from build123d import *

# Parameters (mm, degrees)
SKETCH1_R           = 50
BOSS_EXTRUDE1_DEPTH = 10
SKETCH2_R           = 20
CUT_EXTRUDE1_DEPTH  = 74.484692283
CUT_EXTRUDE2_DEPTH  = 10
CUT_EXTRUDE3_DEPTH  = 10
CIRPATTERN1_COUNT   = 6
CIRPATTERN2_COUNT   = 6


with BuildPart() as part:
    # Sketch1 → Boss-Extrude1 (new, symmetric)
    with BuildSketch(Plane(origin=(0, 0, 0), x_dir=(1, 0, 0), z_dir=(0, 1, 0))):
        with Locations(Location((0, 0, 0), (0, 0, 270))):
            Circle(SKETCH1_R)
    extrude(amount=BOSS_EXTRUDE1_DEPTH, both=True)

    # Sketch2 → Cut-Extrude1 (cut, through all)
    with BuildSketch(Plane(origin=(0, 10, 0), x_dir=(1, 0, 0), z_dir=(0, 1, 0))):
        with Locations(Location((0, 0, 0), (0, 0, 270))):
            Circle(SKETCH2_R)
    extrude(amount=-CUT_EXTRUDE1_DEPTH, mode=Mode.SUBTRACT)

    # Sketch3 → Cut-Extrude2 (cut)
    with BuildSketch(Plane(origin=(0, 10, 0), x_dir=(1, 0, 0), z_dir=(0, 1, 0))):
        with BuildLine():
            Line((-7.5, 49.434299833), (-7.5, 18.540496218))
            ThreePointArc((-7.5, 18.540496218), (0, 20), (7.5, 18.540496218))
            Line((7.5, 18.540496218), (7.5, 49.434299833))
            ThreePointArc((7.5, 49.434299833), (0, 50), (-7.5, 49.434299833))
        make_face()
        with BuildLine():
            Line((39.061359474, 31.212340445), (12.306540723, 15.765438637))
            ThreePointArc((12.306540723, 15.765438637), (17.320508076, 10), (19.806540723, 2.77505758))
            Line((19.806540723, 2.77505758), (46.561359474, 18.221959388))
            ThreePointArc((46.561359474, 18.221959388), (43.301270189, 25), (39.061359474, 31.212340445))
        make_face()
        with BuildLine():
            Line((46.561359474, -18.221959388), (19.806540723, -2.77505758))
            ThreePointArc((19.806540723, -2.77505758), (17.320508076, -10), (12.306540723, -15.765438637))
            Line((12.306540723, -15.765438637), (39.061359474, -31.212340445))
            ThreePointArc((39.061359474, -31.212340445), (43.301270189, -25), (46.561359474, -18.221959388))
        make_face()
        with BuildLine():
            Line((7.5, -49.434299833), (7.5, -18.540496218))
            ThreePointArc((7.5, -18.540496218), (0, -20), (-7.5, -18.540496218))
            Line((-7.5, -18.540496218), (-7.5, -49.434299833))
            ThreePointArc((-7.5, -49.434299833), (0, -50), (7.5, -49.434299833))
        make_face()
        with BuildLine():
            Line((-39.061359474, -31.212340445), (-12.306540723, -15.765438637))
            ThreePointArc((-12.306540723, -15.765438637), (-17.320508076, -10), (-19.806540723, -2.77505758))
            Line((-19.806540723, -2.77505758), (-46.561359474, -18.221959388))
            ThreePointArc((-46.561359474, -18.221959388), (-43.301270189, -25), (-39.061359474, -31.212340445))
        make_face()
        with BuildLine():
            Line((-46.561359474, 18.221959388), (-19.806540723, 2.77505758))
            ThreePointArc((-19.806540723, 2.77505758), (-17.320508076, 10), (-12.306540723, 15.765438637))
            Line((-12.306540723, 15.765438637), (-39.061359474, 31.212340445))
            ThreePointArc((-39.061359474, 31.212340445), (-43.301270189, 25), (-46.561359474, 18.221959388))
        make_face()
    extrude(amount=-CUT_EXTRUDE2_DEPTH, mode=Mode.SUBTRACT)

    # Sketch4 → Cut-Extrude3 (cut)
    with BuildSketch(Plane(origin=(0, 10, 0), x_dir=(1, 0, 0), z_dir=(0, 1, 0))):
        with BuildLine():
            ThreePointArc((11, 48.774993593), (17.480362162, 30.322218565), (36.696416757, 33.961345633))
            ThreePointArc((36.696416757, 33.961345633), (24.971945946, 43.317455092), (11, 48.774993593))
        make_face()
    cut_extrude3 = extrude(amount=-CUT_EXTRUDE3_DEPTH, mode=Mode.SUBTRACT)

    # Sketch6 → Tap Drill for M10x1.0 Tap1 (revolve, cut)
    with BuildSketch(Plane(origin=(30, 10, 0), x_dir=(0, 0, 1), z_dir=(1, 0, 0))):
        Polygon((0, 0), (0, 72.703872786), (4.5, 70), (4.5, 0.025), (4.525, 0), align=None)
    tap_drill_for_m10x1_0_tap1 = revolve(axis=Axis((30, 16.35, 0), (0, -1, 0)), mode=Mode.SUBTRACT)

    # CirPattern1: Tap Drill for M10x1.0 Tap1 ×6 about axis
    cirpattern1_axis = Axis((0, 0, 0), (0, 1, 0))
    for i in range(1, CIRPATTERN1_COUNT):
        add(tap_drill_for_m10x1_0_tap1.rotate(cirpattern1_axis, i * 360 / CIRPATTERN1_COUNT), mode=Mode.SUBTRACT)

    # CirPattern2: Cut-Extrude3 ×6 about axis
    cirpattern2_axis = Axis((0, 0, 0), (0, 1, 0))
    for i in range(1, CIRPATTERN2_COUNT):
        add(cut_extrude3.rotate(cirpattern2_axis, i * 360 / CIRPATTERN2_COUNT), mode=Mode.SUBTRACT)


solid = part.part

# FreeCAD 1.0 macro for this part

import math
import FreeCAD as App
import Part
import Sketcher

V = App.Vector
Q = App.Units.Quantity


def add_polygon(sketch, points):
    """Adds a closed chain of lines whose ends are joined by coincident constraints."""
    first, n = sketch.GeometryCount, len(points)
    for a, b in zip(points, points[1:] + points[:1]):
        sketch.addGeometry(Part.LineSegment(App.Vector(*a, 0), App.Vector(*b, 0)), False)
    for i in range(n):
        sketch.addConstraint(Sketcher.Constraint("Coincident", first + i, 2, first + (i + 1) % n, 1))

doc = App.newDocument("Part")
body = doc.addObject("PartDesign::Body", "Body")

# Sketch on XZ plane
sketch1 = doc.addObject("Sketcher::SketchObject", "Sketch")
body.addObject(sketch1)
sketch1.AttachmentSupport = (doc.XZ_Plane, [""])
sketch1.MapMode = "FlatFace"
sketch1.addGeometry(Part.Circle(V(0, 0, 0), V(0, 0, 1), 50), False)
sketch1.addConstraint([
    Sketcher.Constraint("Coincident", 0, 3, -1, 1),
    Sketcher.Constraint("Diameter", 0, 100.0),
])
pad1 = doc.addObject("PartDesign::Pad", "Pad")
body.addObject(pad1)
pad1.Profile = sketch1
pad1.Length = 20
pad1.Midplane = True

# Sketch on XZ plane
sketch2 = doc.addObject("Sketcher::SketchObject", "Sketch001")
body.addObject(sketch2)
sketch2.AttachmentSupport = (doc.XZ_Plane, [""])
sketch2.MapMode = "FlatFace"
sketch2.AttachmentOffset = App.Placement(V(0, 0, -10), App.Rotation())
sketch2.addGeometry(Part.Circle(V(0, 0, 0), V(0, 0, 1), 20), False)
sketch2.addConstraint([
    Sketcher.Constraint("Coincident", 0, 3, -1, 1),
    Sketcher.Constraint("Diameter", 0, 40.0),
])
pocket1 = doc.addObject("PartDesign::Pocket", "Pocket")
body.addObject(pocket1)
pocket1.Profile = sketch2
pocket1.Type = "ThroughAll"
pocket1.Reversed = True

# Sketch on XZ plane
sketch3 = doc.addObject("Sketcher::SketchObject", "Sketch002")
body.addObject(sketch3)
sketch3.AttachmentSupport = (doc.XZ_Plane, [""])
sketch3.MapMode = "FlatFace"
sketch3.AttachmentOffset = App.Placement(V(0, 0, -10), App.Rotation())
sketch3.addGeometry([
    Part.LineSegment(V(-8, -49, 0), V(-8, -19, 0)),  # 0
    Part.ArcOfCircle(Part.Circle(V(0, 0, 0), V(0, 0, 1), 20), math.radians(-112), math.radians(-68)),  # 1
    Part.LineSegment(V(8, -19, 0), V(8, -49, 0)),  # 2
    Part.ArcOfCircle(Part.Circle(V(0, 0, 0), V(0, 0, 1), 50), math.radians(-98.63), math.radians(-81.37)),  # 3
    Part.LineSegment(V(39, -31, 0), V(12, -16, 0)),  # 4
    Part.ArcOfCircle(Part.Circle(V(0, 0, 0), V(0, 0, 1), 20), math.radians(-52), math.radians(-8)),  # 5
    Part.LineSegment(V(20, -3, 0), V(47, -18, 0)),  # 6
    Part.ArcOfCircle(Part.Circle(V(0, 0, 0), V(0, 0, 1), 50), math.radians(-38.63), math.radians(-21.37)),  # 7
    Part.LineSegment(V(47, 18, 0), V(20, 3, 0)),  # 8
    Part.ArcOfCircle(Part.Circle(V(0, 0, 0), V(0, 0, 1), 20), math.radians(8), math.radians(52)),  # 9
    Part.LineSegment(V(12, 16, 0), V(39, 31, 0)),  # 10
    Part.ArcOfCircle(Part.Circle(V(0, 0, 0), V(0, 0, 1), 50), math.radians(21.37), math.radians(38.63)),  # 11
    Part.LineSegment(V(8, 49, 0), V(8, 19, 0)),  # 12
    Part.ArcOfCircle(Part.Circle(V(0, 0, 0), V(0, 0, 1), 20), math.radians(68), math.radians(112)),  # 13
    Part.LineSegment(V(-8, 19, 0), V(-8, 49, 0)),  # 14
    Part.ArcOfCircle(Part.Circle(V(0, 0, 0), V(0, 0, 1), 50), math.radians(81.37), math.radians(98.63)),  # 15
    Part.LineSegment(V(-39, 31, 0), V(-12, 16, 0)),  # 16
    Part.ArcOfCircle(Part.Circle(V(0, 0, 0), V(0, 0, 1), 20), math.radians(128), math.radians(172)),  # 17
    Part.LineSegment(V(-20, 3, 0), V(-47, 18, 0)),  # 18
    Part.ArcOfCircle(Part.Circle(V(0, 0, 0), V(0, 0, 1), 50), math.radians(141.37), math.radians(158.63)),  # 19
    Part.LineSegment(V(-47, -18, 0), V(-20, -3, 0)),  # 20
    Part.ArcOfCircle(Part.Circle(V(0, 0, 0), V(0, 0, 1), 20), math.radians(-172), math.radians(-128)),  # 21
    Part.LineSegment(V(-12, -16, 0), V(-39, -31, 0)),  # 22
    Part.ArcOfCircle(Part.Circle(V(0, 0, 0), V(0, 0, 1), 50), math.radians(-158.63), math.radians(-141.37)),  # 23
], False)
sketch3.addConstraint([
    Sketcher.Constraint("Coincident", 0, 2, 1, 1),
    Sketcher.Constraint("Coincident", 1, 2, 2, 1),
    Sketcher.Constraint("Coincident", 2, 2, 3, 2),
    Sketcher.Constraint("Coincident", 3, 1, 0, 1),
    Sketcher.Constraint("Coincident", 4, 2, 5, 1),
    Sketcher.Constraint("Coincident", 5, 2, 6, 1),
    Sketcher.Constraint("Coincident", 6, 2, 7, 2),
    Sketcher.Constraint("Coincident", 7, 1, 4, 1),
    Sketcher.Constraint("Coincident", 8, 2, 9, 1),
    Sketcher.Constraint("Coincident", 9, 2, 10, 1),
    Sketcher.Constraint("Coincident", 10, 2, 11, 2),
    Sketcher.Constraint("Coincident", 11, 1, 8, 1),
    Sketcher.Constraint("Coincident", 12, 2, 13, 1),
    Sketcher.Constraint("Coincident", 13, 2, 14, 1),
    Sketcher.Constraint("Coincident", 14, 2, 15, 2),
    Sketcher.Constraint("Coincident", 15, 1, 12, 1),
    Sketcher.Constraint("Coincident", 16, 2, 17, 1),
    Sketcher.Constraint("Coincident", 17, 2, 18, 1),
    Sketcher.Constraint("Coincident", 18, 2, 19, 2),
    Sketcher.Constraint("Coincident", 19, 1, 16, 1),
    Sketcher.Constraint("Coincident", 20, 2, 21, 1),
    Sketcher.Constraint("Coincident", 21, 2, 22, 1),
    Sketcher.Constraint("Coincident", 22, 2, 23, 2),
    Sketcher.Constraint("Coincident", 23, 1, 20, 1),
    Sketcher.Constraint("Vertical", 0),
    Sketcher.Constraint("Vertical", 2),
    Sketcher.Constraint("Vertical", 12),
    Sketcher.Constraint("Vertical", 14),
    Sketcher.Constraint("Coincident", 1, 3, -1, 1),
    Sketcher.Constraint("Coincident", 3, 3, -1, 1),
    Sketcher.Constraint("Coincident", 5, 3, -1, 1),
    Sketcher.Constraint("Coincident", 7, 3, -1, 1),
    Sketcher.Constraint("Coincident", 9, 3, -1, 1),
    Sketcher.Constraint("Coincident", 11, 3, -1, 1),
    Sketcher.Constraint("Coincident", 13, 3, -1, 1),
    Sketcher.Constraint("Coincident", 15, 3, -1, 1),
    Sketcher.Constraint("Coincident", 17, 3, -1, 1),
    Sketcher.Constraint("Coincident", 19, 3, -1, 1),
    Sketcher.Constraint("Coincident", 21, 3, -1, 1),
    Sketcher.Constraint("Coincident", 23, 3, -1, 1),
    Sketcher.Constraint("Equal", 1, 5),
    Sketcher.Constraint("Equal", 3, 7),
    Sketcher.Constraint("Equal", 5, 9),
    Sketcher.Constraint("Equal", 7, 11),
    Sketcher.Constraint("Equal", 9, 13),
    Sketcher.Constraint("Equal", 11, 15),
    Sketcher.Constraint("Equal", 13, 17),
    Sketcher.Constraint("Equal", 15, 19),
    Sketcher.Constraint("Equal", 17, 21),
    Sketcher.Constraint("Equal", 19, 23),
    Sketcher.Constraint("Parallel", 4, 6),
    Sketcher.Constraint("Parallel", 8, 10),
    Sketcher.Constraint("Parallel", 6, 16),
    Sketcher.Constraint("Parallel", 16, 18),
    Sketcher.Constraint("Parallel", 10, 20),
    Sketcher.Constraint("Parallel", 20, 22),
    Sketcher.Constraint("Horizontal", 0, 2, 1, 2),
    Sketcher.Constraint("Horizontal", 12, 2, 13, 2),
    Sketcher.Constraint("Horizontal", 9, 2, 16, 2),
    Sketcher.Constraint("Horizontal", 8, 2, 17, 2),
    Sketcher.Constraint("Horizontal", 11, 1, 18, 2),
    Sketcher.Constraint("Horizontal", 5, 2, 20, 2),
    Sketcher.Constraint("Horizontal", 4, 2, 21, 2),
    Sketcher.Constraint("Vertical", 5, 2, 8, 2),
    Sketcher.Constraint("Vertical", 4, 2, 9, 2),
    Sketcher.Constraint("Vertical", 2, 2, 12, 2),
    Sketcher.Constraint("Equal", 4, 6),
    Sketcher.Constraint("Radius", 1, 20.0),
    Sketcher.Constraint("Radius", 3, 50.0),
    Sketcher.Constraint("Angle", 4, Q("150 deg")),
    Sketcher.Constraint("DistanceX", 0, 2, 1, 2, 15.0),
    Sketcher.Constraint("DistanceX", 4, 2, 5, 2, 7.5),
])
pocket2 = doc.addObject("PartDesign::Pocket", "Pocket001")
body.addObject(pocket2)
pocket2.Profile = sketch3
pocket2.Length = 10
pocket2.Reversed = True

# Sketch on XZ plane
sketch4 = doc.addObject("Sketcher::SketchObject", "Sketch003")
body.addObject(sketch4)
sketch4.AttachmentSupport = (doc.XZ_Plane, [""])
sketch4.MapMode = "FlatFace"
sketch4.AttachmentOffset = App.Placement(V(0, 0, -10), App.Rotation())
sketch4.addGeometry([
    Part.ArcOfCircle(Part.Circle(V(25, -43, 0), V(0, 0, 1), 15), math.radians(39), math.radians(201)),
    Part.ArcOfCircle(Part.Circle(V(0, 0, 0), V(0, 0, 1), 50), math.radians(-77), math.radians(-43)),
], False)
sketch4.addConstraint([
    Sketcher.Constraint("Coincident", 0, 1, 1, 2),
    Sketcher.Constraint("Coincident", 1, 1, 0, 2),
    Sketcher.Constraint("Coincident", 1, 3, -1, 1),
    Sketcher.Constraint("Radius", 0, 15.0),
    Sketcher.Constraint("Radius", 1, 50.0),
    Sketcher.Constraint("DistanceX", -1, 1, 1, 1, 11.0),
    Sketcher.Constraint("DistanceX", 0, 3, 0, 1, 11.724471),
])
pocket3 = doc.addObject("PartDesign::Pocket", "Pocket002")
body.addObject(pocket3)
pocket3.Profile = sketch4
pocket3.Length = 10
pocket3.Reversed = True

# Sketch on YZ plane
sketch5 = doc.addObject("Sketcher::SketchObject", "Sketch004")
body.addObject(sketch5)
sketch5.AttachmentSupport = (doc.YZ_Plane, [""])
sketch5.MapMode = "FlatFace"
sketch5.AttachmentOffset = App.Placement(V(0, 0, 30), App.Rotation())
add_polygon(sketch5, [(-62.704, 0), (10, 0), (10, 4.525), (9.975, 4.5), (-60, 4.5)])  # lines 0-4
sketch5.addConstraint([
    Sketcher.Constraint("Horizontal", 0),
    Sketcher.Constraint("Vertical", 1),
    Sketcher.Constraint("Horizontal", 3),
    Sketcher.Constraint("PointOnObject", 0, 2, -1),
    Sketcher.Constraint("Angle", 2, Q("-135 deg")),
    Sketcher.Constraint("Angle", 4, Q("-121 deg")),
    Sketcher.Constraint("DistanceX", -1, 1, 0, 2, 10.0),
    Sketcher.Constraint("DistanceX", 3, 2, -1, 1, 60.0),
    Sketcher.Constraint("DistanceY", -1, 1, 2, 2, 4.5),
    Sketcher.Constraint("DistanceX", 3, 2, 3, 1, 69.975),
])
groove = doc.addObject("PartDesign::Groove", "Groove")
body.addObject(groove)
groove.Profile = sketch5
groove.ReferenceAxis = (sketch5, ["H_Axis"])
groove.Angle = 360
doc.recompute()

polarpattern = doc.addObject("PartDesign::PolarPattern", "PolarPattern")
body.addObject(polarpattern)
polarpattern.Originals = [groove]
polarpattern.Axis = (doc.Y_Axis, [""])
polarpattern.Angle = 360
polarpattern.Occurrences = 6
body.Tip = polarpattern
doc.recompute()

polarpattern2 = doc.addObject("PartDesign::PolarPattern", "PolarPattern001")
body.addObject(polarpattern2)
polarpattern2.Originals = [pocket3]
polarpattern2.Axis = (doc.Y_Axis, [""])
polarpattern2.Angle = 360
polarpattern2.Occurrences = 6
body.Tip = polarpattern2

doc.recompute()
